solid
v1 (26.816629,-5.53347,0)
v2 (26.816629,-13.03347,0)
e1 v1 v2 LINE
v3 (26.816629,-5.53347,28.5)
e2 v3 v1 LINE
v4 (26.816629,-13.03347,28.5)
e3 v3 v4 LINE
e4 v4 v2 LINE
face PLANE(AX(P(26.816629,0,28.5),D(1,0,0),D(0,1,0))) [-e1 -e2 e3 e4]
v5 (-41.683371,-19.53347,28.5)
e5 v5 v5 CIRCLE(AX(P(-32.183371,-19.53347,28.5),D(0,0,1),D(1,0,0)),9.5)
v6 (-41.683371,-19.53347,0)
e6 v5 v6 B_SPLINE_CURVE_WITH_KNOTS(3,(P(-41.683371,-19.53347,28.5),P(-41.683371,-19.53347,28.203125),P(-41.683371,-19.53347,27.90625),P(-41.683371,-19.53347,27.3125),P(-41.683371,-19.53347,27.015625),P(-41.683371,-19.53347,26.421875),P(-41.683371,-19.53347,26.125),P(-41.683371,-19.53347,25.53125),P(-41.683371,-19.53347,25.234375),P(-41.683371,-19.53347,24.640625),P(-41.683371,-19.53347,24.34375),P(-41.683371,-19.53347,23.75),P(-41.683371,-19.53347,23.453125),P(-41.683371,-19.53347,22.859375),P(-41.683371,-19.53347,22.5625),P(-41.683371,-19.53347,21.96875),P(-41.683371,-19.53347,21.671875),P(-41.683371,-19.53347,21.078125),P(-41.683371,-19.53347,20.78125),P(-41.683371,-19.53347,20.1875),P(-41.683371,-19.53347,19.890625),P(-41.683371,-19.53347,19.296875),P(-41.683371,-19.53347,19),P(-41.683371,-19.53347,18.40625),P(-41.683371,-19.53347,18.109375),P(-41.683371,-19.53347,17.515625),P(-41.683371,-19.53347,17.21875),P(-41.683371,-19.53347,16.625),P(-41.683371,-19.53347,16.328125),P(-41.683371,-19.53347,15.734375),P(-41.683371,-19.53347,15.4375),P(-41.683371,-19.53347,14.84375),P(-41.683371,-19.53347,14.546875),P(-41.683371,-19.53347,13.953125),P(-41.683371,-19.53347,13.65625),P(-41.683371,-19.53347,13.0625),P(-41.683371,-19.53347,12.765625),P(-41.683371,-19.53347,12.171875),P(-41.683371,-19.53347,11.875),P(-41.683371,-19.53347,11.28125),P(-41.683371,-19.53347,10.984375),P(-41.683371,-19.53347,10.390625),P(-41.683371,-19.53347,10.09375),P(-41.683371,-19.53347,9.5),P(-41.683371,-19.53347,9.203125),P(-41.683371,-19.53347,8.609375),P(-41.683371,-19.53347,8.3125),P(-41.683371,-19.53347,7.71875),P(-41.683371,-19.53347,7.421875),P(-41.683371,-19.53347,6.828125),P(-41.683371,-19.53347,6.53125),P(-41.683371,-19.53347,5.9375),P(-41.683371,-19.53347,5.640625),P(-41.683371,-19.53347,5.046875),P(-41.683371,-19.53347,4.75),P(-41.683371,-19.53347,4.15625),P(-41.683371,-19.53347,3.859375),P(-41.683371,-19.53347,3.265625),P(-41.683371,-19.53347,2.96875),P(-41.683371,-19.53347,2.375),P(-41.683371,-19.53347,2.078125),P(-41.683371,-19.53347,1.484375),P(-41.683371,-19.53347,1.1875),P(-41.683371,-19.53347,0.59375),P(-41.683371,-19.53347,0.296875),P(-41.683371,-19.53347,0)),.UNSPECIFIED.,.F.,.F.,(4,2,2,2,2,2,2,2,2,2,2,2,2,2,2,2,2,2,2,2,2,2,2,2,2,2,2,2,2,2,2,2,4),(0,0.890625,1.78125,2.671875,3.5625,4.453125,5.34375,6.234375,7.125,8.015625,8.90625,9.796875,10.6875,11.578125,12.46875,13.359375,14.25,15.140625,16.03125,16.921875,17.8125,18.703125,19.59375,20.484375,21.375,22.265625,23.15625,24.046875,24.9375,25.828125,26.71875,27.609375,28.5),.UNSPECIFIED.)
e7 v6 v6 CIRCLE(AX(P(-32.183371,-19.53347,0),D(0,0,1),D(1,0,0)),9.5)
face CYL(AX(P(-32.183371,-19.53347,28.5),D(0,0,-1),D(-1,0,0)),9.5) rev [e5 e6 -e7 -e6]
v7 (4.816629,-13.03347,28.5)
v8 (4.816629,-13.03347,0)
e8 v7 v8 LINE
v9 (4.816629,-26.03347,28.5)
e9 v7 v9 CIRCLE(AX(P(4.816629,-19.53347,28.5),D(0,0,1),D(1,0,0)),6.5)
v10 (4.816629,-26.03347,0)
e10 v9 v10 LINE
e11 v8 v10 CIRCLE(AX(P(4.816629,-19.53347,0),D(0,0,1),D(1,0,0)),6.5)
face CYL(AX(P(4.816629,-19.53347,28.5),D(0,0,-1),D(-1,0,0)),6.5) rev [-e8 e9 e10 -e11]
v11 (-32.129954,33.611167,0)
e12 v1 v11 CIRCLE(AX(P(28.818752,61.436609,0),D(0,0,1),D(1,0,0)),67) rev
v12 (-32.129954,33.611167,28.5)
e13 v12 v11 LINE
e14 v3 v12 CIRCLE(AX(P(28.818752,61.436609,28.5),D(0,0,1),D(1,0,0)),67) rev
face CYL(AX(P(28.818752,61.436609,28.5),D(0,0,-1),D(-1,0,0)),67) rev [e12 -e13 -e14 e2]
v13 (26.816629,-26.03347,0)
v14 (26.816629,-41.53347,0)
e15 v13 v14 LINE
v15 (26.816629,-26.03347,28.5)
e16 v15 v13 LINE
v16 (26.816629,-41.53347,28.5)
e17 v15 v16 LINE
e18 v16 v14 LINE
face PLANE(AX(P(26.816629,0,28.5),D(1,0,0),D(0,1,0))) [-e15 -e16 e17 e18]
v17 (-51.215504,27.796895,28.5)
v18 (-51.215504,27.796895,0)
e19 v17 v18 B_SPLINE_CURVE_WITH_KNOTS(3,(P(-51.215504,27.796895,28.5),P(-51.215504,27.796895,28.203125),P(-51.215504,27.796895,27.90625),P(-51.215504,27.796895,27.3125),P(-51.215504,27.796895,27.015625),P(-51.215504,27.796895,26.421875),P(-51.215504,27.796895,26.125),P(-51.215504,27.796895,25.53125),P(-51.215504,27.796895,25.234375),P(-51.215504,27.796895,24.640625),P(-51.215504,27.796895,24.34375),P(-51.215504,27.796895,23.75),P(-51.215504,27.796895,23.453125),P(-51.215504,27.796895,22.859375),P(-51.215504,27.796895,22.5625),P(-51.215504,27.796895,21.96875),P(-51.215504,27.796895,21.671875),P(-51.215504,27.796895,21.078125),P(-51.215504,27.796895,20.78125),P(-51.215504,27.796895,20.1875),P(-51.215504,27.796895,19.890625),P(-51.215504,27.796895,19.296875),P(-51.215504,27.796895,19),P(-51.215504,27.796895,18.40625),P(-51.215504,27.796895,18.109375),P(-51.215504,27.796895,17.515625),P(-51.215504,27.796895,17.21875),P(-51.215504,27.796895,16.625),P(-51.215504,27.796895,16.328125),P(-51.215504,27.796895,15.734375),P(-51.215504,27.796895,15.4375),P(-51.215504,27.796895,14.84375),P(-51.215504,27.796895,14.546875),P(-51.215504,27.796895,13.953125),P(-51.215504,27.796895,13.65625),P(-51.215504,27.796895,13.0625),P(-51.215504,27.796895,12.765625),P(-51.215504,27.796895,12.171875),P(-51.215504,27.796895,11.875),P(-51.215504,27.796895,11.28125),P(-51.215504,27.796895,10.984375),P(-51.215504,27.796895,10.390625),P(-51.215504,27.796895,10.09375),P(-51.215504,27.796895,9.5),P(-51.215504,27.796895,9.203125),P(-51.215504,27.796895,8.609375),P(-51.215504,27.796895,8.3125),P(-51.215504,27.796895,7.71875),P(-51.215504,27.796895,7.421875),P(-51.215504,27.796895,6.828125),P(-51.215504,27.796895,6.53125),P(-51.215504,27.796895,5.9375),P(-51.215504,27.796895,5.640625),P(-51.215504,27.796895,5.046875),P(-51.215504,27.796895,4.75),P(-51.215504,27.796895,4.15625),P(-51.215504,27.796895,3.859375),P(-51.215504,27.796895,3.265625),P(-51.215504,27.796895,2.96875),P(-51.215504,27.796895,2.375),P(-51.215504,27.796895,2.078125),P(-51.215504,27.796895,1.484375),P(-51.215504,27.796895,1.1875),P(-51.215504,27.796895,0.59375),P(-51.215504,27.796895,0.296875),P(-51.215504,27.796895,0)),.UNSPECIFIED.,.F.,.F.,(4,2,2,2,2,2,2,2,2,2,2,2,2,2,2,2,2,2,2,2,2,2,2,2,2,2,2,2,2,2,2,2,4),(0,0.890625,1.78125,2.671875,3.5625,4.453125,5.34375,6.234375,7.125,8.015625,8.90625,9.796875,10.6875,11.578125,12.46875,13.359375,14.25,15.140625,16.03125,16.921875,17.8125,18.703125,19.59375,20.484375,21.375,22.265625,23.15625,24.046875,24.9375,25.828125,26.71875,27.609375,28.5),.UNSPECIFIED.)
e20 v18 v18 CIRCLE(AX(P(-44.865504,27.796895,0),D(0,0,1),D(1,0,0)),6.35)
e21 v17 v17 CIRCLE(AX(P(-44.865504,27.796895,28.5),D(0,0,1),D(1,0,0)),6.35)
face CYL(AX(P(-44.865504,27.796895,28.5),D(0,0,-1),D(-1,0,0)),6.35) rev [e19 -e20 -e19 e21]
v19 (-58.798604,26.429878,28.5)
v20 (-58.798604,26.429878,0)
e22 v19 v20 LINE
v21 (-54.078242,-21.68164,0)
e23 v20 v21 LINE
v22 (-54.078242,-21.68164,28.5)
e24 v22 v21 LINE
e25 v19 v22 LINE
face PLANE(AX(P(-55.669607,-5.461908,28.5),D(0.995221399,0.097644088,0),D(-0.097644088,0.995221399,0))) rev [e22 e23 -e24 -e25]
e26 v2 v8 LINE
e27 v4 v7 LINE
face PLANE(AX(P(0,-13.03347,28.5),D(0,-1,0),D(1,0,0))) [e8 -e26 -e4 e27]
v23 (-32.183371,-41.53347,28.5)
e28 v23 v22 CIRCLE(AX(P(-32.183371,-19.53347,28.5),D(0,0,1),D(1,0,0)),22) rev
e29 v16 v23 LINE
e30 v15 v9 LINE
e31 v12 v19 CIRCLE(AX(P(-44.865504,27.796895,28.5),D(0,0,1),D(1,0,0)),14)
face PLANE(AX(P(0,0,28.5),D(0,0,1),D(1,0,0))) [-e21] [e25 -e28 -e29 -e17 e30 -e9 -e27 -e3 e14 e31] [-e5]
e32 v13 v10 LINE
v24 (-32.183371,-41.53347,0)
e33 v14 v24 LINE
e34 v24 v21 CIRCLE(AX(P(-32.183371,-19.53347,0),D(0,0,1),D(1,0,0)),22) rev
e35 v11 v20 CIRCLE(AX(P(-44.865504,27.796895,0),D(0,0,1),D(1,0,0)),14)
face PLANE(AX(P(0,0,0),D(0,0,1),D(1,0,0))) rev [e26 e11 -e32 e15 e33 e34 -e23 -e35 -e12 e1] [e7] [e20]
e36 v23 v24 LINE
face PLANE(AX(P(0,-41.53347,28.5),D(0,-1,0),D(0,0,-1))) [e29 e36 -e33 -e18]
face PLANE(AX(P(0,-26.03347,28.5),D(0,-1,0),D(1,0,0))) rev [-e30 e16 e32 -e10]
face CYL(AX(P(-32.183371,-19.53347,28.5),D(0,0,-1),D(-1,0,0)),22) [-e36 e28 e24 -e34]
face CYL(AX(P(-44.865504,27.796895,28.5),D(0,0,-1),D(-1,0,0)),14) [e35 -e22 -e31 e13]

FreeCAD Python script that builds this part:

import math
import FreeCAD as App
import Part
import Sketcher

V = App.Vector
Q = App.Units.Quantity

doc = App.newDocument("Part")
params = doc.addObject("Spreadsheet::Sheet", "Params")
for row, (alias, value) in enumerate([
    ("sketch1_diameter", "19 mm"),
    ("sketch1_radius", "67 mm"),
    ("sketch1_radius2", "14 mm"),
    ("sketch1_radius3", "22 mm"),
    ("sketch1_diameter2", "12.7 mm"),
    ("pad1_length", "28.5 mm"),
], start=1):
    params.set(f"A{row}", alias)
    params.set(f"B{row}", "=" + value)
    params.setAlias(f"B{row}", alias)

body = doc.addObject("PartDesign::Body", "Body")

# Sketch on XY plane
sketch1 = body.newObject("Sketcher::SketchObject", "Sketch")
sketch1.AttachmentSupport = (doc.getObject("XY_Plane"), [""])
sketch1.MapMode = "FlatFace"
sketch1.addGeometry([
    Part.LineSegment(V(-32.183371, -41.53347, 0), V(26.816629, -41.53347, 0)),  # 0
    Part.LineSegment(V(26.816629, -41.53347, 0), V(26.816629, -26.03347, 0)),  # 1
    Part.LineSegment(V(26.816629, -26.03347, 0), V(4.816629, -26.03347, 0)),  # 2
    Part.ArcOfCircle(Part.Circle(V(4.816629, -19.53347, 0), V(0, 0, 1), 6.5), math.radians(90), math.radians(270)),  # 3
    Part.LineSegment(V(4.816629, -13.03347, 0), V(26.816629, -13.03347, 0)),  # 4
    Part.LineSegment(V(26.816629, -13.03347, 0), V(26.816629, -5.53347, 0)),  # 5
    Part.ArcOfCircle(Part.Circle(V(28.818752, 61.436609, 0), V(0, 0, 1), 67), math.radians(-155.461468), math.radians(-91.712392)),  # 6
    Part.ArcOfCircle(Part.Circle(V(-44.865504, 27.796895, 0), V(0, 0, 1), 14), math.radians(24.538532), math.radians(185.603523)),  # 7
    Part.LineSegment(V(-58.798604, 26.429878, 0), V(-54.078242, -21.68164, 0)),  # 8
    Part.ArcOfCircle(Part.Circle(V(-32.183371, -19.53347, 0), V(0, 0, 1), 22), math.radians(-174.396477), math.radians(-90)),  # 9
    Part.Circle(V(-32.183371, -19.53347, 0), V(0, 0, 1), 9.5),  # 10
    Part.Circle(V(-44.865504, 27.796895, 0), V(0, 0, 1), 6.35),  # 11
], False)
sketch1.addConstraint([
    Sketcher.Constraint("Coincident", 0, 2, 1, 1),
    Sketcher.Constraint("Coincident", 1, 2, 2, 1),
    Sketcher.Constraint("Coincident", 2, 2, 3, 2),
    Sketcher.Constraint("Coincident", 3, 1, 4, 1),
    Sketcher.Constraint("Coincident", 4, 2, 5, 1),
    Sketcher.Constraint("Coincident", 5, 2, 6, 2),
    Sketcher.Constraint("Coincident", 6, 1, 7, 1),
    Sketcher.Constraint("Coincident", 7, 2, 8, 1),
    Sketcher.Constraint("Coincident", 8, 2, 9, 1),
    Sketcher.Constraint("Coincident", 9, 2, 0, 1),
    Sketcher.Constraint("Horizontal", 0),
    Sketcher.Constraint("Vertical", 1),
    Sketcher.Constraint("Horizontal", 2),
    Sketcher.Constraint("Horizontal", 4),
    Sketcher.Constraint("Vertical", 5),
    Sketcher.Constraint("Coincident", 10, 3, 9, 3),
    Sketcher.Constraint("Coincident", 11, 3, 7, 3),
    Sketcher.Constraint("Diameter", 10, Q("19 mm")),
    Sketcher.Constraint("Radius", 6, Q("67 mm")),
    Sketcher.Constraint("Radius", 7, Q("14 mm")),
    Sketcher.Constraint("Radius", 9, Q("22 mm")),
    Sketcher.Constraint("Diameter", 11, Q("12.7 mm")),
    Sketcher.Constraint("Radius", 3, Q("6.5 mm")),
    Sketcher.Constraint("DistanceX", 0, 1, 0, 2, Q("59 mm")),
    Sketcher.Constraint("DistanceX", 2, 2, 2, 1, Q("22 mm")),
    Sketcher.Constraint("DistanceX", 4, 1, 4, 2, Q("22 mm")),
    Sketcher.Constraint("DistanceY", 1, 1, 1, 2, Q("15.5 mm")),
    Sketcher.Constraint("DistanceY", 5, 1, 5, 2, Q("7.5 mm")),
    Sketcher.Constraint("DistanceX", 9, 3, 3, 3, Q("37 mm")),
    Sketcher.Constraint("DistanceX", 3, 3, 0, 2, Q("22 mm")),
    Sketcher.Constraint("DistanceX", 3, 1, 1, 2, Q("22 mm")),
    Sketcher.Constraint("DistanceX", 7, 2, 7, 3, Q("13.9331 mm")),
    Sketcher.Constraint("DistanceX", -1, 1, 3, 3, Q("4.816629 mm")),
    Sketcher.Constraint("DistanceY", 3, 3, -1, 1, Q("19.53347 mm")),
    Sketcher.Constraint("DistanceY", -1, 1, 6, 3, Q("61.436609 mm")),
    Sketcher.Constraint("DistanceX", 8, 2, -1, 1, Q("54.078242 mm")),
    Sketcher.Constraint("DistanceX", 7, 3, 6, 1, Q("12.735551 mm")),
    Sketcher.Constraint("DistanceY", 9, 3, 7, 2, Q("45.963348 mm")),
])
sketch1.setExpression("Constraints[17]", "Params.sketch1_diameter")
sketch1.setExpression("Constraints[18]", "Params.sketch1_radius")
sketch1.setExpression("Constraints[19]", "Params.sketch1_radius2")
sketch1.setExpression("Constraints[20]", "Params.sketch1_radius3")
sketch1.setExpression("Constraints[21]", "Params.sketch1_diameter2")
pad1 = body.newObject("PartDesign::Pad", "Pad")
pad1.Profile = sketch1
pad1.setExpression("Length", "Params.pad1_length")

doc.recompute()
